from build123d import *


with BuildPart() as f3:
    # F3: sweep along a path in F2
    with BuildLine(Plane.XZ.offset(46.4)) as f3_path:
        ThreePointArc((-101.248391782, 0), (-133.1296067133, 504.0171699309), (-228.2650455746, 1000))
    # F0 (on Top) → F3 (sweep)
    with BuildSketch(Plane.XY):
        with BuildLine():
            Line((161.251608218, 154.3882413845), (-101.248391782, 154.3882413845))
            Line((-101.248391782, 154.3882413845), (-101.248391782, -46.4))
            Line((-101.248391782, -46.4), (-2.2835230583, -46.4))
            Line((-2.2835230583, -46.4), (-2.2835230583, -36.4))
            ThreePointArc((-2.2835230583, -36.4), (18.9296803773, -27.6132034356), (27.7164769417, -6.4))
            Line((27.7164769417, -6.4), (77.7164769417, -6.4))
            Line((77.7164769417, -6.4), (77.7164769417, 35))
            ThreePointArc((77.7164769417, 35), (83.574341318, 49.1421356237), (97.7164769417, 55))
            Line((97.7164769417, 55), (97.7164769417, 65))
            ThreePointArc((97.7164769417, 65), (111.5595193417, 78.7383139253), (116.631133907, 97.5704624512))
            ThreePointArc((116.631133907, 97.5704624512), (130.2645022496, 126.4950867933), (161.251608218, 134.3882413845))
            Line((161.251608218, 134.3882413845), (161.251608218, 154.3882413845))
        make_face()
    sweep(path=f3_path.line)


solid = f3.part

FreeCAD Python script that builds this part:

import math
import FreeCAD as App
import Part
import Sketcher

V = App.Vector
Q = App.Units.Quantity

doc = App.newDocument("Part")
body = doc.addObject("PartDesign::Body", "Body")

# Sketch on XY plane
sketch1 = body.newObject("Sketcher::SketchObject", "Sketch")
sketch1.AttachmentSupport = (doc.getObject("XY_Plane"), [""])
sketch1.MapMode = "FlatFace"
sketch1.addGeometry([
    Part.LineSegment(V(161, 154, 0), V(-101, 154, 0)),  # 0
    Part.LineSegment(V(-101, 154, 0), V(-101, -46, 0)),  # 1
    Part.LineSegment(V(-101, -46, 0), V(-2, -46, 0)),  # 2
    Part.LineSegment(V(-2, -46, 0), V(-2, -36, 0)),  # 3
    Part.ArcOfCircle(Part.Circle(V(-2, -6, 0), V(0, 0, 1), 30), math.radians(-90), math.radians(0)),  # 4
    Part.LineSegment(V(28, -6, 0), V(78, -6, 0)),  # 5
    Part.LineSegment(V(78, -6, 0), V(78, 35, 0)),  # 6
    Part.ArcOfCircle(Part.Circle(V(98, 35, 0), V(0, 0, 1), 20), math.radians(90), math.radians(180)),  # 7
    Part.LineSegment(V(98, 55, 0), V(98, 65, 0)),  # 8
    Part.ArcOfCircle(Part.Circle(V(79, 98, 0), V(0, 0, 1), 38), math.radians(-60), math.radians(0)),  # 9
    Part.ArcOfCircle(Part.Circle(V(154, 98, 0), V(0, 0, 1), 38), math.radians(79), math.radians(180)),  # 10
    Part.LineSegment(V(161, 134, 0), V(161, 154, 0)),  # 11
], False)
sketch1.addConstraint([
    Sketcher.Constraint("Coincident", 0, 2, 1, 1),
    Sketcher.Constraint("Coincident", 1, 2, 2, 1),
    Sketcher.Constraint("Coincident", 2, 2, 3, 1),
    Sketcher.Constraint("Coincident", 3, 2, 4, 1),
    Sketcher.Constraint("Coincident", 4, 2, 5, 1),
    Sketcher.Constraint("Coincident", 5, 2, 6, 1),
    Sketcher.Constraint("Tangent", 6, 2, 7, 2),
    Sketcher.Constraint("Coincident", 7, 1, 8, 1),
    Sketcher.Constraint("Coincident", 8, 2, 9, 1),
    Sketcher.Constraint("Tangent", 9, 2, 10, 2),
    Sketcher.Constraint("Coincident", 10, 1, 11, 1),
    Sketcher.Constraint("Coincident", 11, 2, 0, 1),
    Sketcher.Constraint("Horizontal", 0),
    Sketcher.Constraint("Vertical", 1),
    Sketcher.Constraint("Horizontal", 2),
    Sketcher.Constraint("Vertical", 3),
    Sketcher.Constraint("Horizontal", 5),
    Sketcher.Constraint("Vertical", 6),
    Sketcher.Constraint("Vertical", 8),
    Sketcher.Constraint("Vertical", 11),
    Sketcher.Constraint("Equal", 9, 10),
    Sketcher.Constraint("Horizontal", 9, 3, 10, 3),
    Sketcher.Constraint("Vertical", 4, 3, 2, 2),
    Sketcher.Constraint("Equal", 3, 8),
    Sketcher.Constraint("Radius", 4, Q("30 mm")),
    Sketcher.Constraint("Radius", 7, Q("20 mm")),
    Sketcher.Constraint("Radius", 9, Q("37.5 mm")),
    Sketcher.Constraint("DistanceX", 5, 1, 5, 2, Q("50 mm")),
    Sketcher.Constraint("DistanceY", 3, 1, 3, 2, Q("10 mm")),
    Sketcher.Constraint("DistanceY", 11, 1, 11, 2, Q("20 mm")),
    Sketcher.Constraint("DistanceX", 0, 2, 0, 1, Q("262.5 mm")),
    Sketcher.Constraint("DistanceY", 6, 1, 6, 2, Q("41.4 mm")),
    Sketcher.Constraint("DistanceY", -1, 1, 7, 3, Q("35 mm")),
    Sketcher.Constraint("DistanceY", 3, 2, 4, 2, Q("30 mm")),
    Sketcher.Constraint("DistanceX", 6, 2, 7, 1, Q("20 mm")),
    Sketcher.Constraint("DistanceX", 2, 1, 2, 2, Q("98.964869 mm")),
    Sketcher.Constraint("DistanceY", 1, 2, 1, 1, Q("200.788241 mm")),
    Sketcher.Constraint("DistanceX", 0, 2, -1, 1, Q("101.248392 mm")),
])

# Sketch on XZ plane
sketch2 = body.newObject("Sketcher::SketchObject", "Sketch001")
sketch2.AttachmentSupport = (doc.getObject("XZ_Plane"), [""])
sketch2.MapMode = "FlatFace"
sketch2.AttachmentOffset = App.Placement(V(0, 0, 46.4), App.Rotation())
sketch2.addGeometry(Part.ArcOfCircle(Part.Circle(V(-4101, 0, 0), V(0, 0, 1), 4000), math.radians(0), math.radians(14.48)), False)
sketch2.addConstraint([
    Sketcher.Constraint("PointOnObject", 0, 3, -1),
    Sketcher.Constraint("PointOnObject", 0, 1, -1),
    Sketcher.Constraint("Radius", 0, Q("4000 mm")),
    Sketcher.Constraint("DistanceY", -1, 1, 0, 2, Q("1000 mm")),
    Sketcher.Constraint("DistanceX", 0, 3, -1, 1, Q("4101.248392 mm")),
])
doc.recompute()

additivepipe = body.newObject("PartDesign::AdditivePipe", "AdditivePipe")
additivepipe.Profile = sketch1
additivepipe.Spine = (sketch2, ["Edge1"])

doc.recompute()
